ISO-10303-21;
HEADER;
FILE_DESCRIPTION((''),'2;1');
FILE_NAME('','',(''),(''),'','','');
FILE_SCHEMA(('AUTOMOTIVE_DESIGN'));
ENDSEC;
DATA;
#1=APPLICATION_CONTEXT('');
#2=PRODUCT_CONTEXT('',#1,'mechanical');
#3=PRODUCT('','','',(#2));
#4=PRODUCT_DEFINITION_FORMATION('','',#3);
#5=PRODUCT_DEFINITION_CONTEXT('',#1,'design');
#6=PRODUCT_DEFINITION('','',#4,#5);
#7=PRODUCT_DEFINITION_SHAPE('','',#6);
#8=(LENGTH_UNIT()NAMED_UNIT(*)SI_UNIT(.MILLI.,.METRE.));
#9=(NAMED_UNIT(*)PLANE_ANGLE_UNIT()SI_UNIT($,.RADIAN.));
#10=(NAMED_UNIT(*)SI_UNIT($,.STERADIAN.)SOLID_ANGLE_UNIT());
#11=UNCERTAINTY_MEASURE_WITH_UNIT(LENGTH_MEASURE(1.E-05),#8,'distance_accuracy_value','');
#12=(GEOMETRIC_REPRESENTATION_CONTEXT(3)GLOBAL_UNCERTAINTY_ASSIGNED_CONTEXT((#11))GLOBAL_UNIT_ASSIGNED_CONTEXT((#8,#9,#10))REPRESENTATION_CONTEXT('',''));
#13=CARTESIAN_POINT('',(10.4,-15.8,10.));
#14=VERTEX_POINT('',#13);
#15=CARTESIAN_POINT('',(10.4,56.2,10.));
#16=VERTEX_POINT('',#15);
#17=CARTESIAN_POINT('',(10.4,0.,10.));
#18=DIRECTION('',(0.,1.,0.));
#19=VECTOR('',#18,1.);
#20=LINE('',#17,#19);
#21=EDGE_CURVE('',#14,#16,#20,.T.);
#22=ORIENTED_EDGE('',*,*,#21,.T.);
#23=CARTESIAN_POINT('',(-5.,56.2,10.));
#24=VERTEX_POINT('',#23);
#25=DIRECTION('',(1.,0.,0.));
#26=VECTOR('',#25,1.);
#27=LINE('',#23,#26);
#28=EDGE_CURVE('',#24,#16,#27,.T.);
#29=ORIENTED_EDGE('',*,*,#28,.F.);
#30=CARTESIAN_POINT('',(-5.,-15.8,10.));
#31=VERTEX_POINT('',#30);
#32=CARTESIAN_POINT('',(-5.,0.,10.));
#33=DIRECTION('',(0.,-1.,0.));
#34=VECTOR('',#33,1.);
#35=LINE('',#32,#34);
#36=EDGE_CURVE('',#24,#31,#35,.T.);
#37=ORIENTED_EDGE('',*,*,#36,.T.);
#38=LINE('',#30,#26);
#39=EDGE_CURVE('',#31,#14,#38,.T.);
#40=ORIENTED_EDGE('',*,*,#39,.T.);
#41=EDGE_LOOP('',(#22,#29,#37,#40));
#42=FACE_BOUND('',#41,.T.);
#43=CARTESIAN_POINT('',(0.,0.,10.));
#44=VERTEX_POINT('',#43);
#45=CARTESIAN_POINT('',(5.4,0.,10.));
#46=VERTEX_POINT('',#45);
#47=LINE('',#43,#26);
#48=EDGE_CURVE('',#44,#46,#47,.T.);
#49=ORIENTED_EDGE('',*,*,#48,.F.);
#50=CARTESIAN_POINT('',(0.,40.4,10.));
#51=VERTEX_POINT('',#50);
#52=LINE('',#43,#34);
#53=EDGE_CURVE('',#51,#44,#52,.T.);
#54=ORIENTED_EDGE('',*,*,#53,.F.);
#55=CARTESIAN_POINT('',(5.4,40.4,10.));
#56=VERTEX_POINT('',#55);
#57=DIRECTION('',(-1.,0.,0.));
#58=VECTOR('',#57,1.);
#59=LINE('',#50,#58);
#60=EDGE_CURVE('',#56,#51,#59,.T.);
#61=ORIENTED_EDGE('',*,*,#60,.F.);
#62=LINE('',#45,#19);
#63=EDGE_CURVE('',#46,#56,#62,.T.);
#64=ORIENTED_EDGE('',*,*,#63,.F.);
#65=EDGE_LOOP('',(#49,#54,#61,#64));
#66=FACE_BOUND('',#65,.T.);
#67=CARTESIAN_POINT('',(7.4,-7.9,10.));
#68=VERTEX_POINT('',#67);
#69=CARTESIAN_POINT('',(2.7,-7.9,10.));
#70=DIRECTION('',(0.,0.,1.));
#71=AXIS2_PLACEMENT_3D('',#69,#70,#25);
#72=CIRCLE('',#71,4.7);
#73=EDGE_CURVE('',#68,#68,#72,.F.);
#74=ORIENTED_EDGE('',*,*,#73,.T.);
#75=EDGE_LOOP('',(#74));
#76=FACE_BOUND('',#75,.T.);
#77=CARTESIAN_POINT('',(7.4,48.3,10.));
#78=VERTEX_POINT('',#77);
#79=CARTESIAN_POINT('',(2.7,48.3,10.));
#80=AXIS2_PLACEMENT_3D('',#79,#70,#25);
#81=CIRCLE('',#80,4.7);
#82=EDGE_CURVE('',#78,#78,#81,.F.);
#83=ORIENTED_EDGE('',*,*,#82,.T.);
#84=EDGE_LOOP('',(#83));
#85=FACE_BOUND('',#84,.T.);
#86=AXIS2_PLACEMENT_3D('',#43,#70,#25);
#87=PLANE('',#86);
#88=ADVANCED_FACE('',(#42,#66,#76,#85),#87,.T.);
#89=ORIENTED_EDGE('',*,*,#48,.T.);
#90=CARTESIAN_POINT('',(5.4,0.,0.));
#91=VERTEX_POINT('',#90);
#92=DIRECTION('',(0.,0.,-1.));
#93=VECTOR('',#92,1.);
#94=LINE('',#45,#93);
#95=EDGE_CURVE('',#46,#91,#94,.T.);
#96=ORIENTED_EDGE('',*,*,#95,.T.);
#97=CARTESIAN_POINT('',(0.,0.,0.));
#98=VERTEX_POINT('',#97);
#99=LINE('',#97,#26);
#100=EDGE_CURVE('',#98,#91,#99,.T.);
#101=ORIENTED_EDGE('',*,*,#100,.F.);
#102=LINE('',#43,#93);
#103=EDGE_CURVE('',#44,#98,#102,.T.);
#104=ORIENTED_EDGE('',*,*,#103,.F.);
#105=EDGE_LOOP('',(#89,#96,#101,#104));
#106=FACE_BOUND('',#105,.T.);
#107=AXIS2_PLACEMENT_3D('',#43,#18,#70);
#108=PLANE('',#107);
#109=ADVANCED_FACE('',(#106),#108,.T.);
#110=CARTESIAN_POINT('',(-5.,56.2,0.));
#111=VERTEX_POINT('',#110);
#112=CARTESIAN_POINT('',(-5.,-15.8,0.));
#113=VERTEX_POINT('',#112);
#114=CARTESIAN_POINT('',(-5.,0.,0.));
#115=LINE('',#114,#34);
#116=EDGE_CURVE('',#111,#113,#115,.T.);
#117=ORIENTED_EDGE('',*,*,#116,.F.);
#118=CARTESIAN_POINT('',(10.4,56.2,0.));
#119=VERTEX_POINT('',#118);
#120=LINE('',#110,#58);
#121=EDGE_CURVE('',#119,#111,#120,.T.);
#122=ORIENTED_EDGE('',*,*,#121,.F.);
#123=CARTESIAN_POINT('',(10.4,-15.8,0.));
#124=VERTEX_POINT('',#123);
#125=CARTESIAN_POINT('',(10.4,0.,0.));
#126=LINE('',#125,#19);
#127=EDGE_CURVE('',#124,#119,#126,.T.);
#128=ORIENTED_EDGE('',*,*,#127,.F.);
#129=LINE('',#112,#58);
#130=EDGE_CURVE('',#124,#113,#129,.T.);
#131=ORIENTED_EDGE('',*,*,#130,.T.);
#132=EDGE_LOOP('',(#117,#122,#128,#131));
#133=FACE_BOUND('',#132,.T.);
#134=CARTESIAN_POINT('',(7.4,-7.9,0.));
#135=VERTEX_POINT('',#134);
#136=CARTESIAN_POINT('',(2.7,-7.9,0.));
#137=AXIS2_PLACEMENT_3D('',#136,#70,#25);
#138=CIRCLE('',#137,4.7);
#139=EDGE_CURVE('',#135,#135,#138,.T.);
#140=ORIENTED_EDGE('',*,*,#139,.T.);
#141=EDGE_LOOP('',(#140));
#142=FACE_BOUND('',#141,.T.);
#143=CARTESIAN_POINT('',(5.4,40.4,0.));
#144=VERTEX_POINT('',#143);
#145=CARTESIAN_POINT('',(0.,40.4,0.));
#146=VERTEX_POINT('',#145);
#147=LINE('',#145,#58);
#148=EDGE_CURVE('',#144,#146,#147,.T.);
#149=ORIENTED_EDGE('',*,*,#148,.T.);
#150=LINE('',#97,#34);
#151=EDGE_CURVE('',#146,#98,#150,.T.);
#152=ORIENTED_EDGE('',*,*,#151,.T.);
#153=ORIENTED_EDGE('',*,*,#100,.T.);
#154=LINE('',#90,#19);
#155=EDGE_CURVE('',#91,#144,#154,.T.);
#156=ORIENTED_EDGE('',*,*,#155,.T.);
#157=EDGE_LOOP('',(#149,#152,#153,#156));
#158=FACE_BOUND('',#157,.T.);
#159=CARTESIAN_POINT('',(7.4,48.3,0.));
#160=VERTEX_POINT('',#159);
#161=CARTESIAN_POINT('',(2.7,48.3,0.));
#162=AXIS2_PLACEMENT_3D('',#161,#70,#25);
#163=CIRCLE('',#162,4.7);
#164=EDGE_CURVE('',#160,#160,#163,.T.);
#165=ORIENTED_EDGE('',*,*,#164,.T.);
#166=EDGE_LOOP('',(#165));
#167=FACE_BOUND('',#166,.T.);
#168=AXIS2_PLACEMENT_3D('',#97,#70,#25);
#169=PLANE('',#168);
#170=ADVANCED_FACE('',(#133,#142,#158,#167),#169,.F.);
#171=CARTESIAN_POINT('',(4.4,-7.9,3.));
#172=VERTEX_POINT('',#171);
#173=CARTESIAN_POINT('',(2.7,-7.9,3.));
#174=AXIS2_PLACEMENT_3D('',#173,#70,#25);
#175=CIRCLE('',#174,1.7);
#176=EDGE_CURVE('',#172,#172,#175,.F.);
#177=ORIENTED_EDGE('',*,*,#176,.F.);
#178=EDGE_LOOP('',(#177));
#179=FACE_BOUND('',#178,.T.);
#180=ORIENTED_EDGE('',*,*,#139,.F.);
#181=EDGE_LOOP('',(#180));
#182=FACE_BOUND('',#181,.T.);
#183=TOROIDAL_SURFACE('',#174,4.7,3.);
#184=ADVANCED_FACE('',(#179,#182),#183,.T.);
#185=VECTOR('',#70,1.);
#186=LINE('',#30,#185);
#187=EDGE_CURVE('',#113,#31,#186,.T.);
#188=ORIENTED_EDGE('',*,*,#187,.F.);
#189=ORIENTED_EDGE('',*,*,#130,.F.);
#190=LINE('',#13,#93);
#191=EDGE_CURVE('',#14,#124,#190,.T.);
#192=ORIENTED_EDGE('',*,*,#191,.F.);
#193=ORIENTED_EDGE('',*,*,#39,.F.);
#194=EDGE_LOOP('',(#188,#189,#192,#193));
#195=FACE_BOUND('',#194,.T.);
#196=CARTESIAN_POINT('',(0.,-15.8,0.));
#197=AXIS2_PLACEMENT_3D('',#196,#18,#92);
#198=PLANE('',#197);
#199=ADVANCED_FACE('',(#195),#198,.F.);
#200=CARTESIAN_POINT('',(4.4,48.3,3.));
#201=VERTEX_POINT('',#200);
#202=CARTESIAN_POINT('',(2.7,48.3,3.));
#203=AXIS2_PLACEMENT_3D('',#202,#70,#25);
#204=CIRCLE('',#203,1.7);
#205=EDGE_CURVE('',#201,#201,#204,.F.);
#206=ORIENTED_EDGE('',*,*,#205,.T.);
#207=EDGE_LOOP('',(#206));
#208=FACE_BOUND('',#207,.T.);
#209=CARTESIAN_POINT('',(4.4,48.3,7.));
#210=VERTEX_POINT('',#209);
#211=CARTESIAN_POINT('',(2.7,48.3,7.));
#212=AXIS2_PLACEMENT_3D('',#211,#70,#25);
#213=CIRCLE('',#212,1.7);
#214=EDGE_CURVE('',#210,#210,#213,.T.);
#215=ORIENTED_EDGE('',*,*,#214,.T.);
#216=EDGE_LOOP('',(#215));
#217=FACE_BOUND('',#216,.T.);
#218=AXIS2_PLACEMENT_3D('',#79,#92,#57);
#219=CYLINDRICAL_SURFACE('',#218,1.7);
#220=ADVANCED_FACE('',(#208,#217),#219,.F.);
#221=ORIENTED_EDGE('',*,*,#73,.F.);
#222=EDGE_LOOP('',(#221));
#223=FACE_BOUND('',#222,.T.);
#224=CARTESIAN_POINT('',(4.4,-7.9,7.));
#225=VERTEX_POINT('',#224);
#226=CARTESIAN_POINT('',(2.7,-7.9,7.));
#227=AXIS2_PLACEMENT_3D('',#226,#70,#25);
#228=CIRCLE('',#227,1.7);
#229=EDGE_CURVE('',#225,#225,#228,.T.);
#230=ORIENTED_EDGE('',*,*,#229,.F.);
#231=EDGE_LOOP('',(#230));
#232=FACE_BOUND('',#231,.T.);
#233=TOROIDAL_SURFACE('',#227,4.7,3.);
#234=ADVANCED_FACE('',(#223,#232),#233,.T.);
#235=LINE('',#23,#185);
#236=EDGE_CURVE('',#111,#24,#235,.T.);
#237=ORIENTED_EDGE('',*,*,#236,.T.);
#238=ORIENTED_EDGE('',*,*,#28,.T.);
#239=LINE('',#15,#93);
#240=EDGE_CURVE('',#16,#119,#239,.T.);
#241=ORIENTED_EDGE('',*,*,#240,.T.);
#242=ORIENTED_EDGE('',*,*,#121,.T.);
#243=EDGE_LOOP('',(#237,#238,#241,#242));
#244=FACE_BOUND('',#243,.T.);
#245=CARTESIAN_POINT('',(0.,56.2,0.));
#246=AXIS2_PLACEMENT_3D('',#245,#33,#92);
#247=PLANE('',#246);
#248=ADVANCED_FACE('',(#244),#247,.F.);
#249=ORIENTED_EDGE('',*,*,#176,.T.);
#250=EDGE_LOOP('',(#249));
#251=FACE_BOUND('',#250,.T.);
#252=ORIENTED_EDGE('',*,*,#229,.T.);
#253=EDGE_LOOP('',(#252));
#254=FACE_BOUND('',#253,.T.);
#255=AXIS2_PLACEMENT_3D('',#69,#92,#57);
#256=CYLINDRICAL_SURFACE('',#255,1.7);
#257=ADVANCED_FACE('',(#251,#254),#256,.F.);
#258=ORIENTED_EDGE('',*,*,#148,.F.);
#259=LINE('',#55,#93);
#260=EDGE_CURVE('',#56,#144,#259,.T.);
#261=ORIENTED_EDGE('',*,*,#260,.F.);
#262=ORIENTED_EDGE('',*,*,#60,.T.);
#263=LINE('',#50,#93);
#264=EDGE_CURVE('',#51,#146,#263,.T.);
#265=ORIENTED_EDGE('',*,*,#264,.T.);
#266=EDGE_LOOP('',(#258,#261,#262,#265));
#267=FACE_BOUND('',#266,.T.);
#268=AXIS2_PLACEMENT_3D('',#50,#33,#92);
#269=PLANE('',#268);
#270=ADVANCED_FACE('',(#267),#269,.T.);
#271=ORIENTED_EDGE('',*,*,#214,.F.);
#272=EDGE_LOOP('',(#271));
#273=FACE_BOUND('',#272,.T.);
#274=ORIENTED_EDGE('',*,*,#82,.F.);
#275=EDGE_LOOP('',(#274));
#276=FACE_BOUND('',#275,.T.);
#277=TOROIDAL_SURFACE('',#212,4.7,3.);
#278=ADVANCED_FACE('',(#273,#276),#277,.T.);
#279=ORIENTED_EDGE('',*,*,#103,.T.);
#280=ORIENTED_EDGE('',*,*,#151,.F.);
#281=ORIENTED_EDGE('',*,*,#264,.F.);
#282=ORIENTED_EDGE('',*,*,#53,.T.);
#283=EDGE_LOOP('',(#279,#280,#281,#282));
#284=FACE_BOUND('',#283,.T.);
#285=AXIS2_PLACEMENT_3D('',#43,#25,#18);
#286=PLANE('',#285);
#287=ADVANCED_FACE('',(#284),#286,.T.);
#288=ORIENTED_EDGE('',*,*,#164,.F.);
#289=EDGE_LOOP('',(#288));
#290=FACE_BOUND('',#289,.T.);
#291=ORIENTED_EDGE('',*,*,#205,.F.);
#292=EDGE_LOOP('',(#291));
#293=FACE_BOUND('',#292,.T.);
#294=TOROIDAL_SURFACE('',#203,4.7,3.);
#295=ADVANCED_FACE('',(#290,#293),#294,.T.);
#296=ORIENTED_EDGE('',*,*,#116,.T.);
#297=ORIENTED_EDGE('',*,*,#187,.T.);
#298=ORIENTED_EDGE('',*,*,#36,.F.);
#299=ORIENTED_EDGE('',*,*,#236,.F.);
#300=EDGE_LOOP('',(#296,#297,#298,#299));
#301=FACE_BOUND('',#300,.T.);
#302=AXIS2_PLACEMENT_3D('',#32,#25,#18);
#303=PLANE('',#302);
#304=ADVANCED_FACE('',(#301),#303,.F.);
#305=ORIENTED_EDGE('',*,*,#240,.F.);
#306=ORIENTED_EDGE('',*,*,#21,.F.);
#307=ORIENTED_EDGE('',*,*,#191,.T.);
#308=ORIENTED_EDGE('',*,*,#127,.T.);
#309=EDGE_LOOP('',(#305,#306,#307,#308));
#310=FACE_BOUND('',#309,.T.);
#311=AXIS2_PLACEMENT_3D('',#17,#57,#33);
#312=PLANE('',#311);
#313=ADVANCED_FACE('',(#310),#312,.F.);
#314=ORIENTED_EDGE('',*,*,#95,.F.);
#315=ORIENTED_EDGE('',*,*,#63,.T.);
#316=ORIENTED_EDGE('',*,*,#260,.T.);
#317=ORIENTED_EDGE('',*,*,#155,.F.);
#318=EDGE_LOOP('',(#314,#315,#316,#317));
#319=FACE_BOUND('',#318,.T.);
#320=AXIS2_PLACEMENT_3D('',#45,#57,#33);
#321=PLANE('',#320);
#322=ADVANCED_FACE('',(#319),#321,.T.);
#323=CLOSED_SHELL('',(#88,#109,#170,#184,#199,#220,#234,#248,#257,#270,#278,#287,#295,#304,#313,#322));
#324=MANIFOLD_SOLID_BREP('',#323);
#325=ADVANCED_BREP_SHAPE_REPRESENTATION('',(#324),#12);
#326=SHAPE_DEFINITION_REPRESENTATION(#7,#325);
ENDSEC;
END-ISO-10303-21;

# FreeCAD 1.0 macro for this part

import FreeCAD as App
import Part
import Sketcher
from FreeCAD import Vector


def edges_at(feature, points):
    """Names of the edges that pass closest to the given points."""
    edges = feature.Shape.Edges
    near = lambda p: min(range(len(edges)), key=lambda i: edges[i].distToShape(Part.Vertex(*p))[0])
    return sorted({f"Edge{near(p) + 1}" for p in points})

doc = App.newDocument("Part")
params = doc.addObject("Spreadsheet::Sheet", "Params")
for row, (alias, value) in enumerate([
    ("sketch1_width", "15.4 mm"),
    ("sketch1_width2", "5.4 mm"),
    ("sketch1_height", "50.4 mm"),
    ("sketch1_height2", "40.4 mm"),
    ("pad1_length", "10 mm"),
    ("sketch2_height", "10 mm"),
    ("sketch2_width", "15.4 mm"),
    ("pad2_length", "10.8 mm"),
    ("sketch3_diameter", "3.4 mm"),
    ("fillet_radius", "3 mm"),
], start=1):
    params.set(f"A{row}", alias)
    params.set(f"B{row}", "=" + value)
    params.setAlias(f"B{row}", alias)

body = doc.addObject("PartDesign::Body", "Body")

# Sketch on XY plane
sketch1 = body.newObject("Sketcher::SketchObject", "Sketch")
sketch1.AttachmentSupport = (doc.getObject("XY_Plane"), [""])
sketch1.MapMode = "FlatFace"
sketch1.addGeometry([
    Part.LineSegment(Vector(-5, 45.4, 0), Vector(-5, -5, 0)),  # 0
    Part.LineSegment(Vector(-5, -5, 0), Vector(10.4, -5, 0)),  # 1
    Part.LineSegment(Vector(10.4, -5, 0), Vector(10.4, 45.4, 0)),  # 2
    Part.LineSegment(Vector(10.4, 45.4, 0), Vector(-5, 45.4, 0)),  # 3
    Part.LineSegment(Vector(5.4, 0, 0), Vector(0, 0, 0)),  # 4
    Part.LineSegment(Vector(0, 0, 0), Vector(0, 40.4, 0)),  # 5
    Part.LineSegment(Vector(0, 40.4, 0), Vector(5.4, 40.4, 0)),  # 6
    Part.LineSegment(Vector(5.4, 40.4, 0), Vector(5.4, 0, 0)),  # 7
], False)
sketch1.addConstraint([
    Sketcher.Constraint("Coincident", 0, 2, 1, 1),
    Sketcher.Constraint("Coincident", 1, 2, 2, 1),
    Sketcher.Constraint("Coincident", 2, 2, 3, 1),
    Sketcher.Constraint("Coincident", 3, 2, 0, 1),
    Sketcher.Constraint("Coincident", 4, 2, 5, 1),
    Sketcher.Constraint("Coincident", 5, 2, 6, 1),
    Sketcher.Constraint("Coincident", 6, 2, 7, 1),
    Sketcher.Constraint("Coincident", 7, 2, 4, 1),
    Sketcher.Constraint("Vertical", 0),
    Sketcher.Constraint("Horizontal", 1),
    Sketcher.Constraint("Vertical", 2),
    Sketcher.Constraint("Horizontal", 3),
    Sketcher.Constraint("Horizontal", 4),
    Sketcher.Constraint("Vertical", 5),
    Sketcher.Constraint("Horizontal", 6),
    Sketcher.Constraint("Vertical", 7),
    Sketcher.Constraint("Coincident", 4, 2, -1, 1),
    Sketcher.Constraint("DistanceX", 1, 1, 1, 2, 15.4),
    Sketcher.Constraint("DistanceX", 4, 2, 4, 1, 5.4),
    Sketcher.Constraint("DistanceY", 0, 2, 0, 1, 50.4),
    Sketcher.Constraint("DistanceY", 5, 1, 5, 2, 40.4),
    Sketcher.Constraint("DistanceX", 0, 2, -1, 1, 5.0),
    Sketcher.Constraint("DistanceY", 0, 2, -1, 1, 5.0),
])
sketch1.setExpression("Constraints[17]", "Params.sketch1_width")
sketch1.setExpression("Constraints[18]", "Params.sketch1_width2")
sketch1.setExpression("Constraints[19]", "Params.sketch1_height")
sketch1.setExpression("Constraints[20]", "Params.sketch1_height2")
pad1 = body.newObject("PartDesign::Pad", "Pad")
pad1.Profile = sketch1
pad1.setExpression("Length", "Params.pad1_length")

# Sketch on XZ plane
sketch2 = body.newObject("Sketcher::SketchObject", "Sketch001")
sketch2.AttachmentSupport = (doc.getObject("XZ_Plane"), [""])
sketch2.MapMode = "FlatFace"
sketch2.AttachmentOffset = App.Placement(Vector(0, 0, -45.4), App.Rotation())
sketch2.addGeometry([
    Part.LineSegment(Vector(-5, 0, 0), Vector(-5, 10, 0)),
    Part.LineSegment(Vector(-5, 10, 0), Vector(10.4, 10, 0)),
    Part.LineSegment(Vector(10.4, 10, 0), Vector(10.4, 0, 0)),
    Part.LineSegment(Vector(10.4, 0, 0), Vector(-5, 0, 0)),
], False)
sketch2.addConstraint([
    Sketcher.Constraint("Coincident", 0, 2, 1, 1),
    Sketcher.Constraint("Coincident", 1, 2, 2, 1),
    Sketcher.Constraint("Coincident", 2, 2, 3, 1),
    Sketcher.Constraint("Coincident", 3, 2, 0, 1),
    Sketcher.Constraint("Vertical", 0),
    Sketcher.Constraint("Horizontal", 1),
    Sketcher.Constraint("Vertical", 2),
    Sketcher.Constraint("Horizontal", 3),
    Sketcher.Constraint("PointOnObject", 2, 2, -1),
    Sketcher.Constraint("DistanceY", 0, 1, 0, 2, 10.0),
    Sketcher.Constraint("DistanceX", 1, 1, 1, 2, 15.4),
    Sketcher.Constraint("DistanceX", 0, 2, -1, 1, 5.0),
])
sketch2.setExpression("Constraints[9]", "Params.sketch2_height")
sketch2.setExpression("Constraints[10]", "Params.sketch2_width")
pad2 = body.newObject("PartDesign::Pad", "Pad001")
pad2.Profile = sketch2
pad2.setExpression("Length", "Params.pad2_length")
pad2.Reversed = True
doc.recompute()

datumplane = body.newObject("PartDesign::Plane", "DatumPlane")
datumplane.AttachmentSupport = (doc.getObject("XZ_Plane"), [""])
datumplane.MapMode = "FlatFace"
datumplane.AttachmentOffset = App.Placement(Vector(0, 0, -20.2), App.Rotation())
mirrored = body.newObject("PartDesign::Mirrored", "Mirrored")
mirrored.Originals = [pad2]
mirrored.MirrorPlane = (datumplane, [""])
body.Tip = mirrored

# Sketch on XY plane
sketch3 = body.newObject("Sketcher::SketchObject", "Sketch002")
sketch3.AttachmentSupport = (doc.getObject("XY_Plane"), [""])
sketch3.MapMode = "FlatFace"
sketch3.addGeometry(Part.Circle(Vector(2.7, 48.3, 0), Vector(0, 0, 1), 1.7), False)
sketch3.addConstraint([
    Sketcher.Constraint("Diameter", 0, 3.4),
    Sketcher.Constraint("DistanceX", -1, 1, 0, 3, 2.7),
    Sketcher.Constraint("DistanceY", -1, 1, 0, 3, 48.3),
])
sketch3.setExpression("Constraints[0]", "Params.sketch3_diameter")
pocket1 = body.newObject("PartDesign::Pocket", "Pocket")
pocket1.Profile = sketch3
pocket1.Type = "ThroughAll"
pocket1.Reversed = True
doc.recompute()

datumplane2 = body.newObject("PartDesign::Plane", "DatumPlane001")
datumplane2.AttachmentSupport = (doc.getObject("XZ_Plane"), [""])
datumplane2.MapMode = "FlatFace"
datumplane2.AttachmentOffset = App.Placement(Vector(0, 0, -20.2), App.Rotation())
mirrored2 = body.newObject("PartDesign::Mirrored", "Mirrored001")
mirrored2.Originals = [pocket1]
mirrored2.MirrorPlane = (datumplane2, [""])
body.Tip = mirrored2
doc.recompute()

fillet = body.newObject("PartDesign::Fillet", "Fillet")
fillet.Base = (mirrored2, edges_at(mirrored2, [
    (4.4, 48.3, 10),
    (4.4, 48.3, 0),
    (4.4, -7.9, 0),
    (4.4, -7.9, 10),
]))
fillet.setExpression("Radius", "Params.fillet_radius")

doc.recompute()
